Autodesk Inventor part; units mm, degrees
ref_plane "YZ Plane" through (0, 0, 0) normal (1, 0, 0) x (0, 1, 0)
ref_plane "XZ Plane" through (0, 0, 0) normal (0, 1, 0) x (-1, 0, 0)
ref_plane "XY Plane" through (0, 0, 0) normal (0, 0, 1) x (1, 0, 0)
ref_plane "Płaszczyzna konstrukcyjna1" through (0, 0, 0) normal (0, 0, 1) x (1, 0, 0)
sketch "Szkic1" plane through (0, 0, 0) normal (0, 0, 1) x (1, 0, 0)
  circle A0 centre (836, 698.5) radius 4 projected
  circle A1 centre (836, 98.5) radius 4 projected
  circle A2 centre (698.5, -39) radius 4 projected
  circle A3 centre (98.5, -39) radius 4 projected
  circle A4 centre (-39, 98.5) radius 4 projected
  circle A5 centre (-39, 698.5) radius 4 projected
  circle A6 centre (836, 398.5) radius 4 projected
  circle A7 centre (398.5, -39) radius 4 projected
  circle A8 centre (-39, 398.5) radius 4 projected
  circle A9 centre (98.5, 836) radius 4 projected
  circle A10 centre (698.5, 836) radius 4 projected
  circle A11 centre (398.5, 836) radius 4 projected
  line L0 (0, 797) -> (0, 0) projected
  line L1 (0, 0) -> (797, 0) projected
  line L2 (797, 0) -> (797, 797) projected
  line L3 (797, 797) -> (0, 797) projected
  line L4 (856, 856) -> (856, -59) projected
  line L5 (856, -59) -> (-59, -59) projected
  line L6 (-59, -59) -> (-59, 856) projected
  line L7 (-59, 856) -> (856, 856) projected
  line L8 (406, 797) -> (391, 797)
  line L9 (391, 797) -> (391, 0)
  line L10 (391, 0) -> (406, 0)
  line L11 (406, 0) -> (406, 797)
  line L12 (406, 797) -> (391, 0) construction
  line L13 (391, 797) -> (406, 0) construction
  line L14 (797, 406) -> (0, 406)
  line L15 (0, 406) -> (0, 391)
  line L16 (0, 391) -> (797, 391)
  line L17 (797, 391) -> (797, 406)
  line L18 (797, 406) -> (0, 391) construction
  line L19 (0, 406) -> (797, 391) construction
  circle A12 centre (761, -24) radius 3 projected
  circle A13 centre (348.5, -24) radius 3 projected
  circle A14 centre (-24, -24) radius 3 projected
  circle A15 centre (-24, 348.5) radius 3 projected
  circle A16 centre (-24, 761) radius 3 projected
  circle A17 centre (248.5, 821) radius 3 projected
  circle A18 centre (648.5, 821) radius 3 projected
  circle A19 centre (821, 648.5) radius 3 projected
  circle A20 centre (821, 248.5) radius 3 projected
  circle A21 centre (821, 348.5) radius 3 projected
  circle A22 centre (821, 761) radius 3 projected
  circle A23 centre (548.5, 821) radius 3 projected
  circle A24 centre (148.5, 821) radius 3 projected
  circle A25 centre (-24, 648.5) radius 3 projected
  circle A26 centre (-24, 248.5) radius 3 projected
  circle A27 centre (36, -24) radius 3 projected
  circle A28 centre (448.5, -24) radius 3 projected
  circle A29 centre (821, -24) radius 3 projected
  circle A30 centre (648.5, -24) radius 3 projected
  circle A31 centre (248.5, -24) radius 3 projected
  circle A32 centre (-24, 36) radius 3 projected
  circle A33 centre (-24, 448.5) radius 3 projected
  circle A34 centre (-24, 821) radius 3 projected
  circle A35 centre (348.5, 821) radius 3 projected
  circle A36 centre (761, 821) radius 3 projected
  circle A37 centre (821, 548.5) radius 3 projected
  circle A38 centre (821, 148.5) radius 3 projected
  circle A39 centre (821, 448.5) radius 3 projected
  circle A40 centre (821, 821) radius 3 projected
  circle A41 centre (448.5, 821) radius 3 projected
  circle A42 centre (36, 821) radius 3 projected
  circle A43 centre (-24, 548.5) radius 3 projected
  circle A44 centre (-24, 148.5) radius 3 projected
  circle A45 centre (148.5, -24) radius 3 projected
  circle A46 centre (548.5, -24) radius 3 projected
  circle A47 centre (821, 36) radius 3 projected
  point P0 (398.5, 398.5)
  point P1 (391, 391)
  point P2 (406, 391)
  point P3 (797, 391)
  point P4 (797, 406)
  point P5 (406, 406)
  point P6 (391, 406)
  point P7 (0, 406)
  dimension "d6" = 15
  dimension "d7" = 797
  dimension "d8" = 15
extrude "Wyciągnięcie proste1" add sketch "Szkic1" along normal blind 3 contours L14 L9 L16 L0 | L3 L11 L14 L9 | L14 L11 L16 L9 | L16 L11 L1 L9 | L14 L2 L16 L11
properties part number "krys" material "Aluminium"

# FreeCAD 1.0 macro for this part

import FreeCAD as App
import Part
import Sketcher
from FreeCAD import Vector

doc = App.newDocument("Part")
params = doc.addObject("Spreadsheet::Sheet", "Params")
for row, (alias, value) in enumerate([
    ("sketch1_width", "15 mm"),
    ("pad1_length", "3 mm"),
], start=1):
    params.set(f"A{row}", alias)
    params.set(f"B{row}", "=" + value)
    params.setAlias(f"B{row}", alias)

body = doc.addObject("PartDesign::Body", "Body")

# Sketch on XY plane
sketch1 = body.newObject("Sketcher::SketchObject", "Sketch")
sketch1.AttachmentSupport = (doc.getObject("XY_Plane"), [""])
sketch1.MapMode = "FlatFace"
sketch1.addGeometry([
    Part.LineSegment(Vector(391, 406, 0), Vector(0, 406, 0)),  # 0
    Part.LineSegment(Vector(0, 406, 0), Vector(0, 391, 0)),  # 1
    Part.LineSegment(Vector(0, 391, 0), Vector(391, 391, 0)),  # 2
    Part.LineSegment(Vector(391, 391, 0), Vector(391, 0, 0)),  # 3
    Part.LineSegment(Vector(391, 0, 0), Vector(406, 0, 0)),  # 4
    Part.LineSegment(Vector(406, 0, 0), Vector(406, 391, 0)),  # 5
    Part.LineSegment(Vector(406, 391, 0), Vector(797, 391, 0)),  # 6
    Part.LineSegment(Vector(797, 391, 0), Vector(797, 406, 0)),  # 7
    Part.LineSegment(Vector(797, 406, 0), Vector(406, 406, 0)),  # 8
    Part.LineSegment(Vector(406, 406, 0), Vector(406, 797, 0)),  # 9
    Part.LineSegment(Vector(406, 797, 0), Vector(391, 797, 0)),  # 10
    Part.LineSegment(Vector(391, 797, 0), Vector(391, 406, 0)),  # 11
], False)
sketch1.addConstraint([
    Sketcher.Constraint("Coincident", 0, 2, 1, 1),
    Sketcher.Constraint("Coincident", 1, 2, 2, 1),
    Sketcher.Constraint("Coincident", 2, 2, 3, 1),
    Sketcher.Constraint("Coincident", 3, 2, 4, 1),
    Sketcher.Constraint("Coincident", 4, 2, 5, 1),
    Sketcher.Constraint("Coincident", 5, 2, 6, 1),
    Sketcher.Constraint("Coincident", 6, 2, 7, 1),
    Sketcher.Constraint("Coincident", 7, 2, 8, 1),
    Sketcher.Constraint("Coincident", 8, 2, 9, 1),
    Sketcher.Constraint("Coincident", 9, 2, 10, 1),
    Sketcher.Constraint("Coincident", 10, 2, 11, 1),
    Sketcher.Constraint("Coincident", 11, 2, 0, 1),
    Sketcher.Constraint("Horizontal", 0),
    Sketcher.Constraint("Vertical", 1),
    Sketcher.Constraint("Horizontal", 2),
    Sketcher.Constraint("Vertical", 3),
    Sketcher.Constraint("Horizontal", 4),
    Sketcher.Constraint("Vertical", 5),
    Sketcher.Constraint("Horizontal", 6),
    Sketcher.Constraint("Vertical", 7),
    Sketcher.Constraint("Horizontal", 8),
    Sketcher.Constraint("Vertical", 9),
    Sketcher.Constraint("Horizontal", 10),
    Sketcher.Constraint("Vertical", 11),
    Sketcher.Constraint("PointOnObject", 0, 2, -2),
    Sketcher.Constraint("PointOnObject", 3, 2, -1),
    Sketcher.Constraint("Horizontal", 2, 2, 5, 2),
    Sketcher.Constraint("Horizontal", 0, 2, 7, 2),
    Sketcher.Constraint("Vertical", 5, 2, 8, 2),
    Sketcher.Constraint("Vertical", 3, 2, 10, 2),
    Sketcher.Constraint("Equal", 2, 6),
    Sketcher.Constraint("Equal", 10, 1),
    Sketcher.Constraint("Equal", 8, 3),
    Sketcher.Constraint("Equal", 5, 9),
    Sketcher.Constraint("DistanceX", 4, 1, 4, 2, 15.0),
    Sketcher.Constraint("DistanceX", -1, 1, 6, 2, 797.0),
])
sketch1.setExpression("Constraints[34]", "Params.sketch1_width")
pad1 = body.newObject("PartDesign::Pad", "Pad")
pad1.Profile = sketch1
pad1.setExpression("Length", "Params.pad1_length")

doc.recompute()
